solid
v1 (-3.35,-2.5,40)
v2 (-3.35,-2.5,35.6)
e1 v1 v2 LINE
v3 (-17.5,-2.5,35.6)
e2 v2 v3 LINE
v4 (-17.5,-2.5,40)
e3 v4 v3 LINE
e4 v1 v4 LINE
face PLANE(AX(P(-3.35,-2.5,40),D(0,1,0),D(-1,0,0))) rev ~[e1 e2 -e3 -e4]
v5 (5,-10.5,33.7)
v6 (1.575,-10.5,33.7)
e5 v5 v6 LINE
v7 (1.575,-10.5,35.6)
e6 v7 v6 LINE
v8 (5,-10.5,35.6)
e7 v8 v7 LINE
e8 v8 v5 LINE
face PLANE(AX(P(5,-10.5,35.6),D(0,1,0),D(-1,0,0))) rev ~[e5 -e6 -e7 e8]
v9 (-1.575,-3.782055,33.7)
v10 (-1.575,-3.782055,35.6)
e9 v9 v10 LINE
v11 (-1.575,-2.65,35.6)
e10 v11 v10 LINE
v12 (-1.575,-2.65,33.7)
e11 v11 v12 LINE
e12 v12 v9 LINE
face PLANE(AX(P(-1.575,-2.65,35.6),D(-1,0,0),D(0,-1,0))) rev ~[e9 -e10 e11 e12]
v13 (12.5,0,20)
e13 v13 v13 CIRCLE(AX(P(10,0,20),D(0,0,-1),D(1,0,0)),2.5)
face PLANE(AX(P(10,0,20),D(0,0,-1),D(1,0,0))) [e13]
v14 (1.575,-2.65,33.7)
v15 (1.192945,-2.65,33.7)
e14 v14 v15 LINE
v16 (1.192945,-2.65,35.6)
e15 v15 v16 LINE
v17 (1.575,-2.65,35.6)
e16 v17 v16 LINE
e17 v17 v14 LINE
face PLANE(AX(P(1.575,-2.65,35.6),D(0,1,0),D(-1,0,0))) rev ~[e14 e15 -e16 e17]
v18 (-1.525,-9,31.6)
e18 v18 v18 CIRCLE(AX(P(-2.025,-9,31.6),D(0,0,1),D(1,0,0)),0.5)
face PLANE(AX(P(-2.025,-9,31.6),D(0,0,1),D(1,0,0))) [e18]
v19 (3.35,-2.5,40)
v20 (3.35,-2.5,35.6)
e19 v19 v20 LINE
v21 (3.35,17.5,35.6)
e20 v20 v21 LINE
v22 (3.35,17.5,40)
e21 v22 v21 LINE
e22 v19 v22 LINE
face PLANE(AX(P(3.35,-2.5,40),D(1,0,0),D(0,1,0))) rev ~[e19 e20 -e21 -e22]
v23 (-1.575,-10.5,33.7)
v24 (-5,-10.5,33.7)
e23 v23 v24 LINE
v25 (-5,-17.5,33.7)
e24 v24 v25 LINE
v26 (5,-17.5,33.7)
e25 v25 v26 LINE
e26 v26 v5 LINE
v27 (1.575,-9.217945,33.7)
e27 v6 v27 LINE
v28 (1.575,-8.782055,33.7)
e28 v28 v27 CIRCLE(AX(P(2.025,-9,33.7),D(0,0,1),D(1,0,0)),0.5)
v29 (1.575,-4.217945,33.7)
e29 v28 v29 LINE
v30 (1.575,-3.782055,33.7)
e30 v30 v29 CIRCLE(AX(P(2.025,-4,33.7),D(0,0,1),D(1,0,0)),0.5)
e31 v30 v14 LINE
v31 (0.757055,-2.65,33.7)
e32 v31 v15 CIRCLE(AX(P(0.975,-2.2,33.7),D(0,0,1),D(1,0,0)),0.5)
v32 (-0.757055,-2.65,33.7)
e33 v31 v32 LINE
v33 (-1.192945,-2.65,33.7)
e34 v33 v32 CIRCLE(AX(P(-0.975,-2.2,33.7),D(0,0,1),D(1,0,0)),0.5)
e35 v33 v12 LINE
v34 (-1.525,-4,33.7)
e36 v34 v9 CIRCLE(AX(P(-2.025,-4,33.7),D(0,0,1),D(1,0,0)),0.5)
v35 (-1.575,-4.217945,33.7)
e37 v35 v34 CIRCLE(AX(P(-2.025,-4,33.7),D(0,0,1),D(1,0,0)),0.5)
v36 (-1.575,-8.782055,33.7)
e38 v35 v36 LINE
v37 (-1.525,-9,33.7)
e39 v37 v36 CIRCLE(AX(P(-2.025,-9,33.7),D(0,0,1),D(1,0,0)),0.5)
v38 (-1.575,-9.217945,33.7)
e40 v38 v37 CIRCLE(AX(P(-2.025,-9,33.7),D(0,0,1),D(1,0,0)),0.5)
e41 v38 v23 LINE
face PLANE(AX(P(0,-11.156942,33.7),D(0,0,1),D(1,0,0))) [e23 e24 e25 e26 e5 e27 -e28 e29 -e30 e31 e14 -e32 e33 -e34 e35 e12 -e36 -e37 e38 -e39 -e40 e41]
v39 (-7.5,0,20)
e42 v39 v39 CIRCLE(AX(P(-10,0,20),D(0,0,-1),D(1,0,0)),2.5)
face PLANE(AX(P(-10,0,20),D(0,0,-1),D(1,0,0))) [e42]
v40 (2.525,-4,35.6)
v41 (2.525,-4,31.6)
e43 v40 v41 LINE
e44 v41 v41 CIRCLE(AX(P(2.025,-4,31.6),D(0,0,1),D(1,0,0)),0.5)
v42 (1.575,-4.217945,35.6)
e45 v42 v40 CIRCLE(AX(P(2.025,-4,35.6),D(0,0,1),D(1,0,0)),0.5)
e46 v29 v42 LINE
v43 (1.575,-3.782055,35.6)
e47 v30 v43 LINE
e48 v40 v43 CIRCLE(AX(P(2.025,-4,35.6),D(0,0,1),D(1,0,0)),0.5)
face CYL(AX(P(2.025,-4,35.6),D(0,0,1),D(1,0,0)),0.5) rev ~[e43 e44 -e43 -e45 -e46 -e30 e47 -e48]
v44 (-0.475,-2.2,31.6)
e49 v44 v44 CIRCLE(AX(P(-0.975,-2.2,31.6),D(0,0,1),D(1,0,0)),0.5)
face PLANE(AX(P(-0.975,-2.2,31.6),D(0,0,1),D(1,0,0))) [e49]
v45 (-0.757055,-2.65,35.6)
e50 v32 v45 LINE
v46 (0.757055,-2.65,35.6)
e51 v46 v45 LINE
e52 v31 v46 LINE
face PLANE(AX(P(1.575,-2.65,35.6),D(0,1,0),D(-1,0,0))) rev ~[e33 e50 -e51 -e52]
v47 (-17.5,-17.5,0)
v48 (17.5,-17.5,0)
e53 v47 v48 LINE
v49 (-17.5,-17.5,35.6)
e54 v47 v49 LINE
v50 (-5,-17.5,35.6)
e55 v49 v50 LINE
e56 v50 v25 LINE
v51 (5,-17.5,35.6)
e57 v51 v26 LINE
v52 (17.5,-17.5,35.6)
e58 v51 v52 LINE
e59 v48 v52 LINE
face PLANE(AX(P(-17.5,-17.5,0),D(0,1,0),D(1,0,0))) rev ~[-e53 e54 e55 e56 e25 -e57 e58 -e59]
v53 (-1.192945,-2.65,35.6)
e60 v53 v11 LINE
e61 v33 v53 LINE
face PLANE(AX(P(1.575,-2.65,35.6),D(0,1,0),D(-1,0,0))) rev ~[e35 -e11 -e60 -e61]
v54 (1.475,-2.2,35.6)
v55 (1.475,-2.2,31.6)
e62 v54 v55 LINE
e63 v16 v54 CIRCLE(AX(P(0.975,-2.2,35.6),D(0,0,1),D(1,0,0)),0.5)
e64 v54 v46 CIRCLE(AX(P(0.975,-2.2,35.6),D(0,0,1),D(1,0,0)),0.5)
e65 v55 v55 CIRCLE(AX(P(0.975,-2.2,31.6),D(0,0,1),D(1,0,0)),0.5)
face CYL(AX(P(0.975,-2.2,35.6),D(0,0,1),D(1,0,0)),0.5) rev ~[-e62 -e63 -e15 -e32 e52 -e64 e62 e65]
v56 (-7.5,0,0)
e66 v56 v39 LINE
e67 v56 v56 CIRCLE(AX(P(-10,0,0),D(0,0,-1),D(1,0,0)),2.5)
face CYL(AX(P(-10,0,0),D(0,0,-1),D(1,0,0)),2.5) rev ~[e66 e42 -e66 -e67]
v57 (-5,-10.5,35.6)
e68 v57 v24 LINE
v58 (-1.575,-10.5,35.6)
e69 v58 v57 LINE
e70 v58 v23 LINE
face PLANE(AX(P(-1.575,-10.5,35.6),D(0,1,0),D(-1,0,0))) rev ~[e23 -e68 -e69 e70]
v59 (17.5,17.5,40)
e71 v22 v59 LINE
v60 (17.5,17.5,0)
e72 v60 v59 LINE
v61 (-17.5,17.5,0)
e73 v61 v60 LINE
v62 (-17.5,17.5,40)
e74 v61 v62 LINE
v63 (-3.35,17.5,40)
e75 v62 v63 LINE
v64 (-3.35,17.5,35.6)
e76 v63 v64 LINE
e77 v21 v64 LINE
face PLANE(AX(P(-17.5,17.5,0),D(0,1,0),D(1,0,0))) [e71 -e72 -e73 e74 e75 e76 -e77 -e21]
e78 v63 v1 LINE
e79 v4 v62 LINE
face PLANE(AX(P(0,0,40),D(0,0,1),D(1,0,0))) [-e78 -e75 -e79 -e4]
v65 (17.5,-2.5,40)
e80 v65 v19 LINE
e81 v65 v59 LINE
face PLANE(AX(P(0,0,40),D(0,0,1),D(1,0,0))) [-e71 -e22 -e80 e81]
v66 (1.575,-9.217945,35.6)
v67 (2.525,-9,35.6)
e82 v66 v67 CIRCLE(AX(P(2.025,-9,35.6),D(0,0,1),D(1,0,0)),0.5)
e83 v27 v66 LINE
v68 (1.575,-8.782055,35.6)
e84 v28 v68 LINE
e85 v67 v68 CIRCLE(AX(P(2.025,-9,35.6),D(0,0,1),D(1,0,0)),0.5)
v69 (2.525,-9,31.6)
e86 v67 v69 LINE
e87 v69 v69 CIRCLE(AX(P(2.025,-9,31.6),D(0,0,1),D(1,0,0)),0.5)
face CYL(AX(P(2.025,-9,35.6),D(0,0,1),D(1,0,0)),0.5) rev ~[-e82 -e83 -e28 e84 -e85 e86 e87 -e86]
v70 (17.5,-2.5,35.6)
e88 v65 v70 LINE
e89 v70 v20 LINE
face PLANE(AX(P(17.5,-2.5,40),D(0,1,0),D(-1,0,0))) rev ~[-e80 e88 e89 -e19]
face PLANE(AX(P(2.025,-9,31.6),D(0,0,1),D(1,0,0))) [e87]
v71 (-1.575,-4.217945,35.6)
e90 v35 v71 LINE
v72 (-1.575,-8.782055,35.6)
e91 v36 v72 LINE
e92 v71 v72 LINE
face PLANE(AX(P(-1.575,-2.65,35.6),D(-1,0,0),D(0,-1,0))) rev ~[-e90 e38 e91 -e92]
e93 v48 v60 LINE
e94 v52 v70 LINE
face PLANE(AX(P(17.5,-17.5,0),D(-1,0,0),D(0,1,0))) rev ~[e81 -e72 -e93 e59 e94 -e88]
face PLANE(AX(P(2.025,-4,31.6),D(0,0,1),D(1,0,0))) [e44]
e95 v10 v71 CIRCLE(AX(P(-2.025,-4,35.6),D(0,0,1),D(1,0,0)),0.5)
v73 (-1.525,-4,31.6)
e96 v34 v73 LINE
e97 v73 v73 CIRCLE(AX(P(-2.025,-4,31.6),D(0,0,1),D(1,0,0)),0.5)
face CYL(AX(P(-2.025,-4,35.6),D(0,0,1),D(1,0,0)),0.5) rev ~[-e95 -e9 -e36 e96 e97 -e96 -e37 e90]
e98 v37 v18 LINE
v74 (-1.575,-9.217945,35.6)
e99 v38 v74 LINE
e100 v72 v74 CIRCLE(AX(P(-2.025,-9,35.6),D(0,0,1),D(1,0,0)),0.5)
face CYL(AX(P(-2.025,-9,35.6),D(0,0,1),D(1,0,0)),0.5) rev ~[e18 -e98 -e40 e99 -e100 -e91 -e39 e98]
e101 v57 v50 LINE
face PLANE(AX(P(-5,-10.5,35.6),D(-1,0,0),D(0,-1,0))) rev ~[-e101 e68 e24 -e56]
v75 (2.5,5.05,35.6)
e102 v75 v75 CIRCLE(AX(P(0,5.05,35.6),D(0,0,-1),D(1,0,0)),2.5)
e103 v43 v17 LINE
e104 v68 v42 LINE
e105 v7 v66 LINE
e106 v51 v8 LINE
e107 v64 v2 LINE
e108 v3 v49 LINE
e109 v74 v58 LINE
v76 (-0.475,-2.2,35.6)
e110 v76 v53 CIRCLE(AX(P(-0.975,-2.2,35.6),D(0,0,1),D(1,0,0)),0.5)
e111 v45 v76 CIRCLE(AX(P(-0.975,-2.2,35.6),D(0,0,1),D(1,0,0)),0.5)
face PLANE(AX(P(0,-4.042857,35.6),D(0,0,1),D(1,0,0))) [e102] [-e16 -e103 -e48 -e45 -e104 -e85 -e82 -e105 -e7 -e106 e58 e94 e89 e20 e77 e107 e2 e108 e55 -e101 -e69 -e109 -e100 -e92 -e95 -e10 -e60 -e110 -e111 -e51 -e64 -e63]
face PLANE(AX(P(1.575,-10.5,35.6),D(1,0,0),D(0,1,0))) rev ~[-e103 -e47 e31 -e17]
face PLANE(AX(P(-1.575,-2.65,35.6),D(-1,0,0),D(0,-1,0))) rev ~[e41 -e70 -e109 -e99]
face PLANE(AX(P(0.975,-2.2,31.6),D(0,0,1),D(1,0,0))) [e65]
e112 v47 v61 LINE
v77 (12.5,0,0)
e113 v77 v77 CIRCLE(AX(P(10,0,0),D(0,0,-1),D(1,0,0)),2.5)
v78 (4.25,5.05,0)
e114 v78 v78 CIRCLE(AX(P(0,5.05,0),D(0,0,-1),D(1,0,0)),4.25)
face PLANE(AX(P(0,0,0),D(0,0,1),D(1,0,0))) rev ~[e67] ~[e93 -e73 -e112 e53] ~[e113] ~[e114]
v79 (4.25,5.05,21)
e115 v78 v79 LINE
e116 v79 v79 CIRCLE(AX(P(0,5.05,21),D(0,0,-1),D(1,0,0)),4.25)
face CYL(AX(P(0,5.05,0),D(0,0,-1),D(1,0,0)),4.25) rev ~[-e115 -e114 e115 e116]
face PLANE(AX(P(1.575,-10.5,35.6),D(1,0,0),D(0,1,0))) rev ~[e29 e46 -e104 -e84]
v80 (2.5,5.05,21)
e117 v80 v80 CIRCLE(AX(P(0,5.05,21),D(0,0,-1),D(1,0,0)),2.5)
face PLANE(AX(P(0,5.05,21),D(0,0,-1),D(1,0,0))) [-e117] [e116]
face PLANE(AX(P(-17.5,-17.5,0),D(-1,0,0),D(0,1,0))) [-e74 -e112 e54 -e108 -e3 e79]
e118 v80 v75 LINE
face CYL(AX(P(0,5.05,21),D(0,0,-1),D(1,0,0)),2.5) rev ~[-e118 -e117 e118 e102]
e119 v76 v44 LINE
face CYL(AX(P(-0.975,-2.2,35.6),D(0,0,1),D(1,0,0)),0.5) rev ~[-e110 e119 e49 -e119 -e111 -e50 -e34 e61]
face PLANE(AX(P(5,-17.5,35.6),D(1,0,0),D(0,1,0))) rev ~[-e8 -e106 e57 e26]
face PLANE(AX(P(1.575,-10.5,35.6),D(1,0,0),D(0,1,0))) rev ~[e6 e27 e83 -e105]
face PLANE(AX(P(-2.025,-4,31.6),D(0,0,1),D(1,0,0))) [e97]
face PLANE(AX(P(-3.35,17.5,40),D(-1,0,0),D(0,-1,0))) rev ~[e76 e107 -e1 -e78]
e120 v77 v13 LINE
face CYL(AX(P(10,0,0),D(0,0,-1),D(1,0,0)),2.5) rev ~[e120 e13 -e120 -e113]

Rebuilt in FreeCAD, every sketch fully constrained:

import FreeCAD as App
import Part
import Sketcher

doc = App.newDocument("Part")
body = doc.addObject("PartDesign::Body", "Body")

# Sketch on XY plane
sketch1 = body.newObject("Sketcher::SketchObject", "Sketch")
sketch1.AttachmentSupport = (doc.getObject("XY_Plane"), [""])
sketch1.MapMode = "FlatFace"
sketch1.addGeometry([
    Part.LineSegment(App.Vector(-17.5, 17.5, 0), App.Vector(-17.5, -17.5, 0)),
    Part.LineSegment(App.Vector(-17.5, -17.5, 0), App.Vector(17.5, -17.5, 0)),
    Part.LineSegment(App.Vector(17.5, -17.5, 0), App.Vector(17.5, 17.5, 0)),
    Part.LineSegment(App.Vector(17.5, 17.5, 0), App.Vector(-17.5, 17.5, 0)),
], False)
sketch1.addConstraint([
    Sketcher.Constraint("Coincident", 0, 2, 1, 1),
    Sketcher.Constraint("Coincident", 1, 2, 2, 1),
    Sketcher.Constraint("Coincident", 2, 2, 3, 1),
    Sketcher.Constraint("Coincident", 3, 2, 0, 1),
    Sketcher.Constraint("Vertical", 0),
    Sketcher.Constraint("Horizontal", 1),
    Sketcher.Constraint("Vertical", 2),
    Sketcher.Constraint("Horizontal", 3),
    Sketcher.Constraint("Symmetric", 0, 2, 2, 2, -1, 1),
    Sketcher.Constraint("Equal", 3, 0),
    Sketcher.Constraint("DistanceX", 1, 1, 1, 2, 35.0),
])
pad1 = body.newObject("PartDesign::Pad", "Pad")
pad1.Profile = sketch1
pad1.Length = 40

# Sketch on XY plane
sketch2 = body.newObject("Sketcher::SketchObject", "Sketch001")
sketch2.AttachmentSupport = (doc.getObject("XY_Plane"), [""])
sketch2.MapMode = "FlatFace"
sketch2.addGeometry([
    Part.Circle(App.Vector(-10, 0, 0), App.Vector(0, 0, 1), 2.5),
    Part.Circle(App.Vector(10, 0, 0), App.Vector(0, 0, 1), 2.5),
], False)
sketch2.addConstraint([
    Sketcher.Constraint("Equal", 0, 1),
    Sketcher.Constraint("Symmetric", 0, 3, 1, 3, -1, 1),
    Sketcher.Constraint("PointOnObject", 0, 3, -1),
    Sketcher.Constraint("Diameter", 0, 5.0),
    Sketcher.Constraint("DistanceX", 0, 3, -1, 1, 10.0),
])
pocket1 = body.newObject("PartDesign::Pocket", "Pocket")
pocket1.Profile = sketch2
pocket1.Length = 20
pocket1.Reversed = True

# Sketch on XY plane
sketch3 = body.newObject("Sketcher::SketchObject", "Sketch002")
sketch3.AttachmentSupport = (doc.getObject("XY_Plane"), [""])
sketch3.MapMode = "FlatFace"
sketch3.AttachmentOffset = App.Placement(App.Vector(0, 0, 40), App.Rotation())
sketch3.addGeometry([
    Part.LineSegment(App.Vector(-17.5, -17.5, 0), App.Vector(17.5, -17.5, 0)),  # 0
    Part.LineSegment(App.Vector(17.5, -17.5, 0), App.Vector(17.5, -2.5, 0)),  # 1
    Part.LineSegment(App.Vector(17.5, -2.5, 0), App.Vector(3.35, -2.5, 0)),  # 2
    Part.LineSegment(App.Vector(3.35, -2.5, 0), App.Vector(3.35, 17.5, 0)),  # 3
    Part.LineSegment(App.Vector(3.35, 17.5, 0), App.Vector(-3.35, 17.5, 0)),  # 4
    Part.LineSegment(App.Vector(-3.35, 17.5, 0), App.Vector(-3.35, -2.5, 0)),  # 5
    Part.LineSegment(App.Vector(-3.35, -2.5, 0), App.Vector(-17.5, -2.5, 0)),  # 6
    Part.LineSegment(App.Vector(-17.5, -2.5, 0), App.Vector(-17.5, -17.5, 0)),  # 7
], False)
sketch3.addConstraint([
    Sketcher.Constraint("Coincident", 0, 2, 1, 1),
    Sketcher.Constraint("Coincident", 1, 2, 2, 1),
    Sketcher.Constraint("Coincident", 2, 2, 3, 1),
    Sketcher.Constraint("Coincident", 3, 2, 4, 1),
    Sketcher.Constraint("Coincident", 4, 2, 5, 1),
    Sketcher.Constraint("Coincident", 5, 2, 6, 1),
    Sketcher.Constraint("Coincident", 6, 2, 7, 1),
    Sketcher.Constraint("Coincident", 7, 2, 0, 1),
    Sketcher.Constraint("Horizontal", 0),
    Sketcher.Constraint("Vertical", 1),
    Sketcher.Constraint("Horizontal", 2),
    Sketcher.Constraint("Vertical", 3),
    Sketcher.Constraint("Horizontal", 4),
    Sketcher.Constraint("Vertical", 5),
    Sketcher.Constraint("Horizontal", 6),
    Sketcher.Constraint("Vertical", 7),
    Sketcher.Constraint("Symmetric", 2, 2, 5, 2, -2),
    Sketcher.Constraint("Equal", 2, 6),
    Sketcher.Constraint("DistanceX", 0, 1, 0, 2, 35.0),
    Sketcher.Constraint("DistanceY", 1, 1, 1, 2, 15.0),
    Sketcher.Constraint("DistanceY", 3, 1, 3, 2, 20.0),
    Sketcher.Constraint("DistanceX", 4, 2, 4, 1, 6.7),
    Sketcher.Constraint("DistanceY", 0, 2, -1, 1, 17.5),
])
pocket2 = body.newObject("PartDesign::Pocket", "Pocket001")
pocket2.Profile = sketch3
pocket2.Length = 4.4

# Sketch on XY plane
sketch4 = body.newObject("Sketcher::SketchObject", "Sketch003")
sketch4.AttachmentSupport = (doc.getObject("XY_Plane"), [""])
sketch4.MapMode = "FlatFace"
sketch4.addGeometry(Part.Circle(App.Vector(0, 5.05, 0), App.Vector(0, 0, 1), 4.25), False)
sketch4.addConstraint([
    Sketcher.Constraint("PointOnObject", 0, 3, -2),
    Sketcher.Constraint("Diameter", 0, 8.5),
    Sketcher.Constraint("DistanceY", -1, 1, 0, 3, 5.05),
])
pocket3 = body.newObject("PartDesign::Pocket", "Pocket002")
pocket3.Profile = sketch4
pocket3.Length = 21
pocket3.Reversed = True

# Sketch on XY plane
sketch5 = body.newObject("Sketcher::SketchObject", "Sketch004")
sketch5.AttachmentSupport = (doc.getObject("XY_Plane"), [""])
sketch5.MapMode = "FlatFace"
sketch5.AttachmentOffset = App.Placement(App.Vector(0, 0, 21), App.Rotation())
sketch5.addGeometry(Part.Circle(App.Vector(0, 5.05, 0), App.Vector(0, 0, 1), 2.5), False)
sketch5.addConstraint([
    Sketcher.Constraint("PointOnObject", 0, 3, -2),
    Sketcher.Constraint("Diameter", 0, 5.0),
    Sketcher.Constraint("DistanceY", -1, 1, 0, 3, 5.05),
])
pocket4 = body.newObject("PartDesign::Pocket", "Pocket003")
pocket4.Profile = sketch5
pocket4.Type = "ThroughAll"
pocket4.Reversed = True

# Sketch on XY plane
sketch6 = body.newObject("Sketcher::SketchObject", "Sketch005")
sketch6.AttachmentSupport = (doc.getObject("XY_Plane"), [""])
sketch6.MapMode = "FlatFace"
sketch6.AttachmentOffset = App.Placement(App.Vector(0, 0, 35.6), App.Rotation())
sketch6.addGeometry([
    Part.LineSegment(App.Vector(-5, -17.5, 0), App.Vector(5, -17.5, 0)),  # 0
    Part.LineSegment(App.Vector(5, -17.5, 0), App.Vector(5, -10.5, 0)),  # 1
    Part.LineSegment(App.Vector(5, -10.5, 0), App.Vector(1.575, -10.5, 0)),  # 2
    Part.LineSegment(App.Vector(1.575, -10.5, 0), App.Vector(1.575, -2.65, 0)),  # 3
    Part.LineSegment(App.Vector(1.575, -2.65, 0), App.Vector(-1.575, -2.65, 0)),  # 4
    Part.LineSegment(App.Vector(-1.575, -2.65, 0), App.Vector(-1.575, -10.5, 0)),  # 5
    Part.LineSegment(App.Vector(-1.575, -10.5, 0), App.Vector(-5, -10.5, 0)),  # 6
    Part.LineSegment(App.Vector(-5, -10.5, 0), App.Vector(-5, -17.5, 0)),  # 7
], False)
sketch6.addConstraint([
    Sketcher.Constraint("Coincident", 0, 2, 1, 1),
    Sketcher.Constraint("Coincident", 1, 2, 2, 1),
    Sketcher.Constraint("Coincident", 2, 2, 3, 1),
    Sketcher.Constraint("Coincident", 3, 2, 4, 1),
    Sketcher.Constraint("Coincident", 4, 2, 5, 1),
    Sketcher.Constraint("Coincident", 5, 2, 6, 1),
    Sketcher.Constraint("Coincident", 6, 2, 7, 1),
    Sketcher.Constraint("Coincident", 7, 2, 0, 1),
    Sketcher.Constraint("Horizontal", 0),
    Sketcher.Constraint("Vertical", 1),
    Sketcher.Constraint("Horizontal", 2),
    Sketcher.Constraint("Vertical", 3),
    Sketcher.Constraint("Horizontal", 4),
    Sketcher.Constraint("Vertical", 5),
    Sketcher.Constraint("Horizontal", 6),
    Sketcher.Constraint("Vertical", 7),
    Sketcher.Constraint("Symmetric", 2, 2, 5, 2, -2),
    Sketcher.Constraint("Equal", 2, 6),
    Sketcher.Constraint("DistanceX", 0, 1, 0, 2, 10.0),
    Sketcher.Constraint("DistanceY", 1, 1, 1, 2, 7.0),
    Sketcher.Constraint("DistanceX", 4, 2, 4, 1, 3.15),
    Sketcher.Constraint("DistanceY", 3, 1, 3, 2, 7.85),
    Sketcher.Constraint("DistanceY", 0, 2, -1, 1, 17.5),
])
pocket5 = body.newObject("PartDesign::Pocket", "Pocket004")
pocket5.Profile = sketch6
pocket5.Length = 1.9

# Sketch on XY plane
sketch7 = body.newObject("Sketcher::SketchObject", "Sketch006")
sketch7.AttachmentSupport = (doc.getObject("XY_Plane"), [""])
sketch7.MapMode = "FlatFace"
sketch7.AttachmentOffset = App.Placement(App.Vector(0, 0, 35.6), App.Rotation())
sketch7.addGeometry([
    Part.Circle(App.Vector(-2.025, -9, 0), App.Vector(0, 0, 1), 0.5),  # 0
    Part.Circle(App.Vector(-2.025, -4, 0), App.Vector(0, 0, 1), 0.5),  # 1
    Part.Circle(App.Vector(2.025, -9, 0), App.Vector(0, 0, 1), 0.5),  # 2
    Part.Circle(App.Vector(2.025, -4, 0), App.Vector(0, 0, 1), 0.5),  # 3
    Part.Circle(App.Vector(-0.975, -2.2, 0), App.Vector(0, 0, 1), 0.5),  # 4
    Part.Circle(App.Vector(0.975, -2.2, 0), App.Vector(0, 0, 1), 0.5),  # 5
], False)
sketch7.addConstraint([
    Sketcher.Constraint("Equal", 0, 1),
    Sketcher.Constraint("Equal", 1, 2),
    Sketcher.Constraint("Equal", 2, 3),
    Sketcher.Constraint("Equal", 3, 4),
    Sketcher.Constraint("Equal", 4, 5),
    Sketcher.Constraint("Symmetric", 0, 3, 2, 3, -2),
    Sketcher.Constraint("Symmetric", 1, 3, 3, 3, -2),
    Sketcher.Constraint("Symmetric", 4, 3, 5, 3, -2),
    Sketcher.Constraint("Vertical", 0, 3, 1, 3),
    Sketcher.Constraint("Diameter", 0, 1.0),
    Sketcher.Constraint("DistanceY", 0, 3, -1, 1, 9.0),
    Sketcher.Constraint("DistanceY", 1, 3, -1, 1, 4.0),
    Sketcher.Constraint("DistanceX", 4, 3, 3, 3, 3.0),
    Sketcher.Constraint("DistanceY", 4, 3, -1, 1, 2.2),
    Sketcher.Constraint("DistanceX", 0, 3, 2, 3, 4.05),
])
pocket6 = body.newObject("PartDesign::Pocket", "Pocket005")
pocket6.Profile = sketch7
pocket6.Length = 4

doc.recompute()
